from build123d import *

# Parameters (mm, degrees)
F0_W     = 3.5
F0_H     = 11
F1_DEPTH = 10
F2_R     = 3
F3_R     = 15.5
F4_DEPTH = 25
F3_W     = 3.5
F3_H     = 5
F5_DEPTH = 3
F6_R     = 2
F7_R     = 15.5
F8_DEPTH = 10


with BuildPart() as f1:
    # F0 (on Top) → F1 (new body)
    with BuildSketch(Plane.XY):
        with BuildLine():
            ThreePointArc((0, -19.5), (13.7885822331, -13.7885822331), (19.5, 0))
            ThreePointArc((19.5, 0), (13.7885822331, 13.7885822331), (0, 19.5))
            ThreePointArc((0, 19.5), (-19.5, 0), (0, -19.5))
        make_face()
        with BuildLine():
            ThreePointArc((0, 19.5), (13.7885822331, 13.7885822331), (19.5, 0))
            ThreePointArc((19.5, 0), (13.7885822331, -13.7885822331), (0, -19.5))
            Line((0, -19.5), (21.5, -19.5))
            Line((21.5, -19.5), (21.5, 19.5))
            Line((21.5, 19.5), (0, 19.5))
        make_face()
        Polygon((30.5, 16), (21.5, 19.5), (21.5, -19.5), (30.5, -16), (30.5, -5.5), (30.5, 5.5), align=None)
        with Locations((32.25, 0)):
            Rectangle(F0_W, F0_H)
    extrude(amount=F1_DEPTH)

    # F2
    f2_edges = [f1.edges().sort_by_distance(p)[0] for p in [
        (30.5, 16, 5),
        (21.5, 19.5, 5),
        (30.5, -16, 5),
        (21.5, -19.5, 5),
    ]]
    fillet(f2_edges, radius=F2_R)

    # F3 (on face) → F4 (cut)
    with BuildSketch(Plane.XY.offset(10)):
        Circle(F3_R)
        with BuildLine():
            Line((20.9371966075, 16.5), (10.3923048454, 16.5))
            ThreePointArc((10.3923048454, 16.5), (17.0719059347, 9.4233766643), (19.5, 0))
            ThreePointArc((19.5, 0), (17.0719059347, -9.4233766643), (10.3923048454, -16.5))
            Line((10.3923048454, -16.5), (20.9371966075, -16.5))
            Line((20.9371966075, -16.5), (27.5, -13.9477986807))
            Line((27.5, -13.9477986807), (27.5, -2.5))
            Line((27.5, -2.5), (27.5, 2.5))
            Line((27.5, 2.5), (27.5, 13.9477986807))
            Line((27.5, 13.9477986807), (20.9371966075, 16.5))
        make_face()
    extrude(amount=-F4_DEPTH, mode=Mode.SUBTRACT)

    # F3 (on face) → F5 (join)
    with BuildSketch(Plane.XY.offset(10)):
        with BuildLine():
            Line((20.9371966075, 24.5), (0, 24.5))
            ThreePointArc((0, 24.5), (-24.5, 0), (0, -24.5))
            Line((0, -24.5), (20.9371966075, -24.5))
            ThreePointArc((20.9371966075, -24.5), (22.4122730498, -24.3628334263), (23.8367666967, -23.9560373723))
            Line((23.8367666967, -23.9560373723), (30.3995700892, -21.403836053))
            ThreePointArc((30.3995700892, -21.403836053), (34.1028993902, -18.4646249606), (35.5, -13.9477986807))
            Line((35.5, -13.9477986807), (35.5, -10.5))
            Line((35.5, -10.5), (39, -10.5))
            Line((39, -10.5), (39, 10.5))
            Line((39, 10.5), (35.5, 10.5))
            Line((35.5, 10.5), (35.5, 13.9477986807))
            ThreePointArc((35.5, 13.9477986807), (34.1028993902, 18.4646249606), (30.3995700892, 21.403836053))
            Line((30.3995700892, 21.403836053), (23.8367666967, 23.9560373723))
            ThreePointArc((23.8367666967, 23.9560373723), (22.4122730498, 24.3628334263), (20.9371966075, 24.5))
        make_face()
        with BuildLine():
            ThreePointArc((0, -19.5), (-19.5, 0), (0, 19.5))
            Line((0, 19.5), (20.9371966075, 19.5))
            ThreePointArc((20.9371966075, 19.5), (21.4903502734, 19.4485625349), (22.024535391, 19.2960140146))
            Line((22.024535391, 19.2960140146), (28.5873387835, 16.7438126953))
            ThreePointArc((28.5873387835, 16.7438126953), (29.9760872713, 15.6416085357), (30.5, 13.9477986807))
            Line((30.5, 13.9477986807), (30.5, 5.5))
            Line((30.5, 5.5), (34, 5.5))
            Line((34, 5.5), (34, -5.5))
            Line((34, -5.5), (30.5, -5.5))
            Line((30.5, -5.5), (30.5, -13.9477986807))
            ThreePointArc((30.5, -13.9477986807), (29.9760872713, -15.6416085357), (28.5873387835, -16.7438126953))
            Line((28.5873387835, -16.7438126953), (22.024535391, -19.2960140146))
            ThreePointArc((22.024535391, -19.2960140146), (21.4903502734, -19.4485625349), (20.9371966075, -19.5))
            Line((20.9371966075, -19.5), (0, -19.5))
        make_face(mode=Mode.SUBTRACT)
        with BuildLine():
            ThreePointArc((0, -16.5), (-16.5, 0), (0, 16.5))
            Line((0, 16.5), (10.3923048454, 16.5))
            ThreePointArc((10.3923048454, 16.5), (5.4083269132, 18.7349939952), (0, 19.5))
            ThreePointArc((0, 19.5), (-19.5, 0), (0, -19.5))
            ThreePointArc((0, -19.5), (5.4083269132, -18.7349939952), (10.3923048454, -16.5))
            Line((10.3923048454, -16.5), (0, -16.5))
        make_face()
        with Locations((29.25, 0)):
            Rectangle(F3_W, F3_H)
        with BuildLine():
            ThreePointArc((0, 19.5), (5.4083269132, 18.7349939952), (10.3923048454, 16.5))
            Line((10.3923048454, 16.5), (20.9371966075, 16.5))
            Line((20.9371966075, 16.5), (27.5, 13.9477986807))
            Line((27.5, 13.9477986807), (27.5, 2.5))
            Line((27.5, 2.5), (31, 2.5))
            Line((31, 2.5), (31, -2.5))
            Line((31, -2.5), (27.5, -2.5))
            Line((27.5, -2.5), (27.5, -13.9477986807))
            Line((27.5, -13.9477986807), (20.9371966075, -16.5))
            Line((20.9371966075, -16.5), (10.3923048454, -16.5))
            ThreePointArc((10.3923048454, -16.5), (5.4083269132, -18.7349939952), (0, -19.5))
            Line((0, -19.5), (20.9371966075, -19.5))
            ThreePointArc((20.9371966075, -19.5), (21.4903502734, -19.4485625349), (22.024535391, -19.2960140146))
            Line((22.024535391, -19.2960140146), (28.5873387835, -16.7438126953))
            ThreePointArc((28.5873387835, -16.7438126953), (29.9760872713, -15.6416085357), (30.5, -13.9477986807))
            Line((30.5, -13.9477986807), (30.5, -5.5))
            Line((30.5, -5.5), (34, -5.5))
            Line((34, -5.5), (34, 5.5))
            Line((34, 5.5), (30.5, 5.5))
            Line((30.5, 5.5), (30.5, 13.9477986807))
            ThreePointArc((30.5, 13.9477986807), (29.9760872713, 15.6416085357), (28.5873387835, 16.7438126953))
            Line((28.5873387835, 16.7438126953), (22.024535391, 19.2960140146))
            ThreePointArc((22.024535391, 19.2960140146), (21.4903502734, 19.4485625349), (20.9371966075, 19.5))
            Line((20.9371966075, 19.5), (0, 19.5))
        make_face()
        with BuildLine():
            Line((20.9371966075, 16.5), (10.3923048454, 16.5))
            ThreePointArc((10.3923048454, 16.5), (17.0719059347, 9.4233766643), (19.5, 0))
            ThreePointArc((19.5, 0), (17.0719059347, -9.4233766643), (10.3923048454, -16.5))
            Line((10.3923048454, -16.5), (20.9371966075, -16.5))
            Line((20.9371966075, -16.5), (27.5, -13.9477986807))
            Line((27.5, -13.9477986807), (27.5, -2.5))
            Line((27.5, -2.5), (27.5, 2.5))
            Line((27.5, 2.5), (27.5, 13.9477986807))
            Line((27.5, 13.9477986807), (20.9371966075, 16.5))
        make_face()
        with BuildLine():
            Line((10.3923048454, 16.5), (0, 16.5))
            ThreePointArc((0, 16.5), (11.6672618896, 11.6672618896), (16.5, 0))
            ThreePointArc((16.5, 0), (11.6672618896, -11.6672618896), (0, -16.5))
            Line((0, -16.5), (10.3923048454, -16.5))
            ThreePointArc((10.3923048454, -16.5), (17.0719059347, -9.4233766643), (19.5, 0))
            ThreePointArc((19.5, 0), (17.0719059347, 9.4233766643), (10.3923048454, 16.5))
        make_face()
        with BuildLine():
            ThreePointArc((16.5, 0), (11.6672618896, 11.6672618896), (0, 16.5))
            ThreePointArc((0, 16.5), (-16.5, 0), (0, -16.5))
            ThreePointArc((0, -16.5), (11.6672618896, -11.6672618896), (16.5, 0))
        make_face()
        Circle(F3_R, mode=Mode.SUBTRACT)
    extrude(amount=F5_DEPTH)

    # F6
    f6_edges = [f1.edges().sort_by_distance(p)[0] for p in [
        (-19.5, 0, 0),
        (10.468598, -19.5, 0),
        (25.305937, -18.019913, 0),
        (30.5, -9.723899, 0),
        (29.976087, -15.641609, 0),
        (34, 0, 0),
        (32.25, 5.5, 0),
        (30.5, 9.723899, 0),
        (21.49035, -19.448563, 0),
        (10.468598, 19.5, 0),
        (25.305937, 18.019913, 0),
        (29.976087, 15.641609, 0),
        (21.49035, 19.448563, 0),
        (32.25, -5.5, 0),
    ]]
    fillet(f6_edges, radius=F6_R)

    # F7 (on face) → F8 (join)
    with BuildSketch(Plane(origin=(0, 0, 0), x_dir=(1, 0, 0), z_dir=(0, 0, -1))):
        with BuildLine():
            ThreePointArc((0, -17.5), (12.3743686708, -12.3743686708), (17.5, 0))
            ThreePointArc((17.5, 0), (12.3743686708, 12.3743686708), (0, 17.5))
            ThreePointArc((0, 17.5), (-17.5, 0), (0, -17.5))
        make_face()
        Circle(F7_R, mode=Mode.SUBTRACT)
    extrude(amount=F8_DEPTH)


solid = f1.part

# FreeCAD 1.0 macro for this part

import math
import FreeCAD as App
import Part
import Sketcher

V = App.Vector
Q = App.Units.Quantity


def edges_at(feature, points):
    """Names of the edges that pass closest to the given points."""
    edges = feature.Shape.Edges
    near = lambda p: min(range(len(edges)), key=lambda i: edges[i].distToShape(Part.Vertex(*p))[0])
    return sorted({f"Edge{near(p) + 1}" for p in points})

doc = App.newDocument("Part")
params = doc.addObject("Spreadsheet::Sheet", "Params")
for row, (alias, value) in enumerate([
    ("sketch1_radius", "19.5 mm"),
    ("sketch1_height", "11 mm"),
    ("sketch1_width", "21.5 mm"),
    ("sketch1_width2", "3.5 mm"),
    ("sketch1_height2", "10.5 mm"),
    ("pad1_length", "10 mm"),
    ("fillet_radius", "3 mm"),
    ("sketch2_diameter", "31 mm"),
    ("sketch2_radius", "19.5 mm"),
    ("pocket1_length", "25 mm"),
    ("sketch3_diameter", "31 mm"),
    ("sketch3_radius", "8 mm"),
    ("sketch3_radius2", "24.5 mm"),
    ("sketch3_height", "21 mm"),
    ("sketch3_width", "3.5 mm"),
    ("pad2_length", "3 mm"),
    ("fillet2_radius", "2 mm"),
    ("sketch4_diameter", "31 mm"),
    ("sketch4_radius", "17.5 mm"),
    ("pad3_length", "10 mm"),
], start=1):
    params.set(f"A{row}", alias)
    params.set(f"B{row}", "=" + value)
    params.setAlias(f"B{row}", alias)

body = doc.addObject("PartDesign::Body", "Body")

# Sketch on XY plane
sketch1 = body.newObject("Sketcher::SketchObject", "Sketch")
sketch1.AttachmentSupport = (doc.getObject("XY_Plane"), [""])
sketch1.MapMode = "FlatFace"
sketch1.addGeometry([
    Part.ArcOfCircle(Part.Circle(V(0, 0, 0), V(0, 0, 1), 19.5), math.radians(90), math.radians(270)),  # 0
    Part.LineSegment(V(0, -19.5, 0), V(21.5, -19.5, 0)),  # 1
    Part.LineSegment(V(21.5, -19.5, 0), V(30.5, -16, 0)),  # 2
    Part.LineSegment(V(30.5, -16, 0), V(30.5, -5.5, 0)),  # 3
    Part.LineSegment(V(30.5, -5.5, 0), V(34, -5.5, 0)),  # 4
    Part.LineSegment(V(34, -5.5, 0), V(34, 5.5, 0)),  # 5
    Part.LineSegment(V(34, 5.5, 0), V(30.5, 5.5, 0)),  # 6
    Part.LineSegment(V(30.5, 5.5, 0), V(30.5, 16, 0)),  # 7
    Part.LineSegment(V(30.5, 16, 0), V(21.5, 19.5, 0)),  # 8
    Part.LineSegment(V(21.5, 19.5, 0), V(0, 19.5, 0)),  # 9
], False)
sketch1.addConstraint([
    Sketcher.Constraint("Tangent", 0, 2, 1, 1),
    Sketcher.Constraint("Coincident", 1, 2, 2, 1),
    Sketcher.Constraint("Coincident", 2, 2, 3, 1),
    Sketcher.Constraint("Coincident", 3, 2, 4, 1),
    Sketcher.Constraint("Coincident", 4, 2, 5, 1),
    Sketcher.Constraint("Coincident", 5, 2, 6, 1),
    Sketcher.Constraint("Coincident", 6, 2, 7, 1),
    Sketcher.Constraint("Coincident", 7, 2, 8, 1),
    Sketcher.Constraint("Coincident", 8, 2, 9, 1),
    Sketcher.Constraint("Tangent", 9, 2, 0, 1),
    Sketcher.Constraint("Horizontal", 1),
    Sketcher.Constraint("Vertical", 3),
    Sketcher.Constraint("Horizontal", 4),
    Sketcher.Constraint("Vertical", 5),
    Sketcher.Constraint("Horizontal", 6),
    Sketcher.Constraint("Vertical", 7),
    Sketcher.Constraint("Horizontal", 9),
    Sketcher.Constraint("Coincident", 0, 3, -1, 1),
    Sketcher.Constraint("Symmetric", 3, 2, 6, 2, -1),
    Sketcher.Constraint("Vertical", 1, 2, 8, 2),
    Sketcher.Constraint("Equal", 3, 7),
    Sketcher.Constraint("Radius", 0, Q("19.5 mm")),
    Sketcher.Constraint("DistanceY", 5, 1, 5, 2, Q("11 mm")),
    Sketcher.Constraint("DistanceX", 1, 1, 1, 2, Q("21.5 mm")),
    Sketcher.Constraint("DistanceX", 4, 1, 4, 2, Q("3.5 mm")),
    Sketcher.Constraint("DistanceY", 3, 1, 3, 2, Q("10.5 mm")),
    Sketcher.Constraint("DistanceX", -1, 1, 4, 2, Q("34 mm")),
])
sketch1.setExpression("Constraints[21]", "Params.sketch1_radius")
sketch1.setExpression("Constraints[22]", "Params.sketch1_height")
sketch1.setExpression("Constraints[23]", "Params.sketch1_width")
sketch1.setExpression("Constraints[24]", "Params.sketch1_width2")
sketch1.setExpression("Constraints[25]", "Params.sketch1_height2")
pad1 = body.newObject("PartDesign::Pad", "Pad")
pad1.Profile = sketch1
pad1.setExpression("Length", "Params.pad1_length")
doc.recompute()

fillet = body.newObject("PartDesign::Fillet", "Fillet")
fillet.Base = (pad1, edges_at(pad1, [
    (30.5, 16, 5),
    (21.5, 19.5, 5),
    (30.5, -16, 5),
    (21.5, -19.5, 5),
]))
fillet.setExpression("Radius", "Params.fillet_radius")

# Sketch on XY plane
sketch2 = body.newObject("Sketcher::SketchObject", "Sketch001")
sketch2.AttachmentSupport = (doc.getObject("XY_Plane"), [""])
sketch2.MapMode = "FlatFace"
sketch2.AttachmentOffset = App.Placement(V(0, 0, 10), App.Rotation())
sketch2.addGeometry([
    Part.Circle(V(0, 0, 0), V(0, 0, 1), 16),  # 0
    Part.LineSegment(V(21, 16, 0), V(10, 16, 0)),  # 1
    Part.ArcOfCircle(Part.Circle(V(0, 0, 0), V(0, 0, 1), 20), math.radians(0), math.radians(58)),  # 2
    Part.ArcOfCircle(Part.Circle(V(0, 0, 0), V(0, 0, 1), 20), math.radians(-58), math.radians(0)),  # 3
    Part.LineSegment(V(10, -16, 0), V(21, -16, 0)),  # 4
    Part.LineSegment(V(21, -16, 0), V(28, -14, 0)),  # 5
    Part.LineSegment(V(28, -14, 0), V(28, 14, 0)),  # 6
    Part.LineSegment(V(28, 14, 0), V(21, 16, 0)),  # 7
], False)
sketch2.addConstraint([
    Sketcher.Constraint("Coincident", 1, 2, 2, 2),
    Sketcher.Constraint("Tangent", 2, 1, 3, 2),
    Sketcher.Constraint("Coincident", 3, 1, 4, 1),
    Sketcher.Constraint("Coincident", 4, 2, 5, 1),
    Sketcher.Constraint("Coincident", 5, 2, 6, 1),
    Sketcher.Constraint("Coincident", 6, 2, 7, 1),
    Sketcher.Constraint("Coincident", 7, 2, 1, 1),
    Sketcher.Constraint("Horizontal", 1),
    Sketcher.Constraint("Horizontal", 4),
    Sketcher.Constraint("Vertical", 6),
    Sketcher.Constraint("Coincident", 0, 3, -1, 1),
    Sketcher.Constraint("Coincident", 2, 3, -1, 1),
    Sketcher.Constraint("Equal", 2, 3),
    Sketcher.Constraint("Symmetric", 4, 2, 7, 2, -1),
    Sketcher.Constraint("PointOnObject", 2, 1, -1),
    Sketcher.Constraint("Equal", 5, 7),
    Sketcher.Constraint("Diameter", 0, Q("31 mm")),
    Sketcher.Constraint("Radius", 2, Q("19.5 mm")),
    Sketcher.Constraint("DistanceY", 3, 1, 1, 2, Q("33 mm")),
    Sketcher.Constraint("DistanceX", 2, 1, 5, 2, Q("8 mm")),
    Sketcher.Constraint("Distance", 5, Q("7.041599 mm")),
    Sketcher.Constraint("DistanceX", 1, 2, 1, 1, Q("10.544892 mm")),
])
sketch2.setExpression("Constraints[16]", "Params.sketch2_diameter")
sketch2.setExpression("Constraints[17]", "Params.sketch2_radius")
pocket1 = body.newObject("PartDesign::Pocket", "Pocket")
pocket1.Profile = sketch2
pocket1.setExpression("Length", "Params.pocket1_length")

# Sketch on XY plane
sketch3 = body.newObject("Sketcher::SketchObject", "Sketch002")
sketch3.AttachmentSupport = (doc.getObject("XY_Plane"), [""])
sketch3.MapMode = "FlatFace"
sketch3.AttachmentOffset = App.Placement(V(0, 0, 10), App.Rotation())
sketch3.addGeometry([
    Part.LineSegment(V(20.9, 24.5, 0), V(0, 24.5, 0)),  # 0
    Part.ArcOfCircle(Part.Circle(V(0, 0, 0), V(0, 0, 1), 24.5), math.radians(90), math.radians(270)),  # 1
    Part.LineSegment(V(0, -24.5, 0), V(20.9, -24.5, 0)),  # 2
    Part.ArcOfCircle(Part.Circle(V(20.9, -16.5, 0), V(0, 0, 1), 8), math.radians(-90), math.radians(-69)),  # 3
    Part.LineSegment(V(23.8, -24, 0), V(30.4, -21.4, 0)),  # 4
    Part.ArcOfCircle(Part.Circle(V(27.5, -13.9, 0), V(0, 0, 1), 8), math.radians(-69), math.radians(0)),  # 5
    Part.LineSegment(V(35.5, -13.9, 0), V(35.5, -10.5, 0)),  # 6
    Part.LineSegment(V(35.5, -10.5, 0), V(39, -10.5, 0)),  # 7
    Part.LineSegment(V(39, -10.5, 0), V(39, 10.5, 0)),  # 8
    Part.LineSegment(V(39, 10.5, 0), V(35.5, 10.5, 0)),  # 9
    Part.LineSegment(V(35.5, 10.5, 0), V(35.5, 13.9, 0)),  # 10
    Part.ArcOfCircle(Part.Circle(V(27.5, 13.9, 0), V(0, 0, 1), 8), math.radians(0), math.radians(69)),  # 11
    Part.LineSegment(V(30.4, 21.4, 0), V(23.8, 24, 0)),  # 12
    Part.ArcOfCircle(Part.Circle(V(20.9, 16.5, 0), V(0, 0, 1), 8), math.radians(69), math.radians(90)),  # 13
    Part.Circle(V(0, 0, 0), V(0, 0, 1), 15.5),  # 14
], False)
sketch3.addConstraint([
    Sketcher.Constraint("Tangent", 0, 2, 1, 1),
    Sketcher.Constraint("Tangent", 1, 2, 2, 1),
    Sketcher.Constraint("Tangent", 2, 2, 3, 1),
    Sketcher.Constraint("Tangent", 3, 2, 4, 1),
    Sketcher.Constraint("Tangent", 4, 2, 5, 1),
    Sketcher.Constraint("Tangent", 5, 2, 6, 1),
    Sketcher.Constraint("Coincident", 6, 2, 7, 1),
    Sketcher.Constraint("Coincident", 7, 2, 8, 1),
    Sketcher.Constraint("Coincident", 8, 2, 9, 1),
    Sketcher.Constraint("Coincident", 9, 2, 10, 1),
    Sketcher.Constraint("Tangent", 10, 2, 11, 1),
    Sketcher.Constraint("Tangent", 11, 2, 12, 1),
    Sketcher.Constraint("Tangent", 12, 2, 13, 1),
    Sketcher.Constraint("Tangent", 13, 2, 0, 1),
    Sketcher.Constraint("Horizontal", 0),
    Sketcher.Constraint("Horizontal", 2),
    Sketcher.Constraint("Vertical", 6),
    Sketcher.Constraint("Horizontal", 7),
    Sketcher.Constraint("Vertical", 8),
    Sketcher.Constraint("Horizontal", 9),
    Sketcher.Constraint("Vertical", 10),
    Sketcher.Constraint("Coincident", 1, 3, -1, 1),
    Sketcher.Constraint("Coincident", 14, 3, -1, 1),
    Sketcher.Constraint("Equal", 3, 5),
    Sketcher.Constraint("Equal", 5, 11),
    Sketcher.Constraint("Equal", 11, 13),
    Sketcher.Constraint("Symmetric", 5, 3, 11, 3, -1),
    Sketcher.Constraint("Vertical", 3, 3, 13, 3),
    Sketcher.Constraint("Equal", 6, 10),
    Sketcher.Constraint("Diameter", 14, Q("31 mm")),
    Sketcher.Constraint("Radius", 3, Q("8 mm")),
    Sketcher.Constraint("Radius", 1, Q("24.5 mm")),
    Sketcher.Constraint("DistanceY", 8, 1, 8, 2, Q("21 mm")),
    Sketcher.Constraint("DistanceX", 7, 1, 7, 2, Q("3.5 mm")),
    Sketcher.Constraint("DistanceX", -1, 1, 7, 2, Q("39 mm")),
    Sketcher.Constraint("DistanceY", 6, 1, 6, 2, Q("3.447799 mm")),
    Sketcher.Constraint("Distance", 4, Q("7.041599 mm")),
])
sketch3.setExpression("Constraints[29]", "Params.sketch3_diameter")
sketch3.setExpression("Constraints[30]", "Params.sketch3_radius")
sketch3.setExpression("Constraints[31]", "Params.sketch3_radius2")
sketch3.setExpression("Constraints[32]", "Params.sketch3_height")
sketch3.setExpression("Constraints[33]", "Params.sketch3_width")
pad2 = body.newObject("PartDesign::Pad", "Pad001")
pad2.Profile = sketch3
pad2.setExpression("Length", "Params.pad2_length")
doc.recompute()

fillet2 = body.newObject("PartDesign::Fillet", "Fillet001")
fillet2.Base = (pad2, edges_at(pad2, [
    (-19.5, 0, 0),
    (10.469, -19.5, 0),
    (25.306, -18.02, 0),
    (30.5, -9.724, 0),
    (29.976, -15.642, 0),
    (34, 0, 0),
    (32.25, 5.5, 0),
    (30.5, 9.724, 0),
    (21.49, -19.449, 0),
    (10.469, 19.5, 0),
    (25.306, 18.02, 0),
    (29.976, 15.642, 0),
    (21.49, 19.449, 0),
    (32.25, -5.5, 0),
]))
fillet2.setExpression("Radius", "Params.fillet2_radius")

# Sketch on XY plane
sketch4 = body.newObject("Sketcher::SketchObject", "Sketch003")
sketch4.AttachmentSupport = (doc.getObject("XY_Plane"), [""])
sketch4.MapMode = "FlatFace"
sketch4.addGeometry([
    Part.ArcOfCircle(Part.Circle(V(0, 0, 0), V(0, 0, 1), 18), math.radians(0), math.radians(90)),
    Part.ArcOfCircle(Part.Circle(V(0, 0, 0), V(0, 0, 1), 18), math.radians(-90), math.radians(0)),
    Part.ArcOfCircle(Part.Circle(V(0, 0, 0), V(0, 0, 1), 18), math.radians(90), math.radians(270)),
    Part.Circle(V(0, 0, 0), V(0, 0, 1), 16),
], False)
sketch4.addConstraint([
    Sketcher.Constraint("Tangent", 0, 1, 1, 2),
    Sketcher.Constraint("Tangent", 1, 1, 2, 2),
    Sketcher.Constraint("Tangent", 2, 1, 0, 2),
    Sketcher.Constraint("Coincident", 0, 3, -1, 1),
    Sketcher.Constraint("Coincident", 3, 3, -1, 1),
    Sketcher.Constraint("PointOnObject", 0, 1, -1),
    Sketcher.Constraint("PointOnObject", 1, 1, -2),
    Sketcher.Constraint("PointOnObject", 2, 1, -2),
    Sketcher.Constraint("Diameter", 3, Q("31 mm")),
    Sketcher.Constraint("Radius", 0, Q("17.5 mm")),
])
sketch4.setExpression("Constraints[8]", "Params.sketch4_diameter")
sketch4.setExpression("Constraints[9]", "Params.sketch4_radius")
pad3 = body.newObject("PartDesign::Pad", "Pad002")
pad3.Profile = sketch4
pad3.setExpression("Length", "Params.pad3_length")
pad3.Reversed = True

doc.recompute()
